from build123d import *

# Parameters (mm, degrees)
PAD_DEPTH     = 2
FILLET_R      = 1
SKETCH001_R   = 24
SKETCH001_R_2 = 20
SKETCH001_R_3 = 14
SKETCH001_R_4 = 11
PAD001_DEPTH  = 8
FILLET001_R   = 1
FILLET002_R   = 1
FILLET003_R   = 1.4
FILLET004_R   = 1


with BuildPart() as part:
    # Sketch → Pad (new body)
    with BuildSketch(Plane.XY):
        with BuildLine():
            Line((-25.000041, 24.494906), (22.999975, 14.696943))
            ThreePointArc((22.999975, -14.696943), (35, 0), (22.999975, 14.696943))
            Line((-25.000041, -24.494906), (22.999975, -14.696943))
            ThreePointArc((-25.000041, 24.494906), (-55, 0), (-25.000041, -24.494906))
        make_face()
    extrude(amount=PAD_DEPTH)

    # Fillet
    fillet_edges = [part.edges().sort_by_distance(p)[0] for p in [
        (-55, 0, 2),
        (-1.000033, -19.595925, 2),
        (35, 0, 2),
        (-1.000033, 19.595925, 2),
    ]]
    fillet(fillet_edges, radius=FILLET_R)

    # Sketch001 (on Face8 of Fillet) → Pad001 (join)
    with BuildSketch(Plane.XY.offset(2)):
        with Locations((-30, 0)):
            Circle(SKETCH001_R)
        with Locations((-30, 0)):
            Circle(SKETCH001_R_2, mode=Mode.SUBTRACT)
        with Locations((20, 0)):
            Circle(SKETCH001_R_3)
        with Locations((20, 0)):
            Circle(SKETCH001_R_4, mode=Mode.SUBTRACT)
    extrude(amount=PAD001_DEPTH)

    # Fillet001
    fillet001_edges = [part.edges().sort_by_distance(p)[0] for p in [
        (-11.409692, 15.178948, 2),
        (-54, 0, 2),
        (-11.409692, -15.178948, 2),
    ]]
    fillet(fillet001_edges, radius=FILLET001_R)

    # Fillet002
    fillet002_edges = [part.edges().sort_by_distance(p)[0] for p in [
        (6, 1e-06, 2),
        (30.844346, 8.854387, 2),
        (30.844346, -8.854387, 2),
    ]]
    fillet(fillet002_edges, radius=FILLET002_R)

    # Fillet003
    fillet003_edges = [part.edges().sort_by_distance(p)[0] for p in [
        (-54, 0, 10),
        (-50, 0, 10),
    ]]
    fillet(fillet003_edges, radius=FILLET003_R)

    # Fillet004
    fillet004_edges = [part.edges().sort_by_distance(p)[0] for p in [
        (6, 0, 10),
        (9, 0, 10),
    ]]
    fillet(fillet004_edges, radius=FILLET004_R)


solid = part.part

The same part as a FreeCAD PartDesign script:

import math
import FreeCAD as App
import Part
import Sketcher


def edges_at(feature, points):
    """Names of the edges that pass closest to the given points."""
    edges = feature.Shape.Edges
    near = lambda p: min(range(len(edges)), key=lambda i: edges[i].distToShape(Part.Vertex(*p))[0])
    return sorted({f"Edge{near(p) + 1}" for p in points})

doc = App.newDocument("Part")
body = doc.addObject("PartDesign::Body", "Body")

sketch1 = body.newObject("Sketcher::SketchObject", "Sketch")
sketch1.AttachmentSupport = (doc.getObject("XY_Plane"), [""])
sketch1.MapMode = "FlatFace"
sketch1.addGeometry([
    Part.LineSegment(App.Vector(22.999975, 14.696943, 0), App.Vector(-25.000041, 24.494906, 0)),
    Part.ArcOfCircle(Part.Circle(App.Vector(-30, 0, 0), App.Vector(0, 0, 1), 25), math.radians(78.463137), math.radians(281.536863)),
    Part.LineSegment(App.Vector(-25.000041, -24.494906, 0), App.Vector(22.999975, -14.696943, 0)),
    Part.ArcOfCircle(Part.Circle(App.Vector(20.000001, 0, 0), App.Vector(0, 0, 1), 14.999999), math.radians(-78.463141), math.radians(78.463141)),
], False)
sketch1.addConstraint([
    Sketcher.Constraint("Coincident", 0, 2, 1, 1),
    Sketcher.Constraint("Coincident", 1, 2, 2, 1),
    Sketcher.Constraint("Coincident", 2, 2, 3, 1),
    Sketcher.Constraint("Coincident", 3, 2, 0, 1),
    Sketcher.Constraint("PointOnObject", 1, 3, -1),
    Sketcher.Constraint("PointOnObject", 3, 3, -1),
    Sketcher.Constraint("Radius", 1, 25.0),
    Sketcher.Constraint("Radius", 3, 14.999999),
    Sketcher.Constraint("DistanceX", 1, 3, -1, 1, 30.0),
    Sketcher.Constraint("DistanceX", -1, 1, 3, 3, 20.000001),
    Sketcher.Constraint("Distance", 0, 48.989811),
    Sketcher.Constraint("Distance", 2, 48.989811),
    Sketcher.Constraint("DistanceX", 0, 2, -1, 1, 25.000041),
    Sketcher.Constraint("DistanceX", 1, 2, -1, 1, 25.000041),
])
pad1 = body.newObject("PartDesign::Pad", "Pad")
pad1.Profile = sketch1
pad1.Length = 2
doc.recompute()

fillet = body.newObject("PartDesign::Fillet", "Fillet")
fillet.Base = (pad1, edges_at(pad1, [
    (-55, 0, 2),
    (-1, -19.596, 2),
    (35, 0, 2),
    (-1, 19.596, 2),
]))
fillet.Radius = 1

sketch2 = body.newObject("Sketcher::SketchObject", "Sketch001")
sketch2.AttachmentSupport = (doc.getObject("XY_Plane"), [""])
sketch2.MapMode = "FlatFace"
sketch2.AttachmentOffset = App.Placement(App.Vector(0, 0, 2), App.Rotation())
sketch2.addGeometry([
    Part.Circle(App.Vector(-30, 0, 0), App.Vector(0, 0, 1), 24),
    Part.Circle(App.Vector(-30, 0, 0), App.Vector(0, 0, 1), 20),
    Part.Circle(App.Vector(20, 0, 0), App.Vector(0, 0, 1), 14),
    Part.Circle(App.Vector(20, 0, 0), App.Vector(0, 0, 1), 11),
], False)
sketch2.addConstraint([
    Sketcher.Constraint("Coincident", 1, 3, 0, 3),
    Sketcher.Constraint("Coincident", 3, 3, 2, 3),
    Sketcher.Constraint("PointOnObject", 0, 3, -1),
    Sketcher.Constraint("PointOnObject", 2, 3, -1),
    Sketcher.Constraint("Diameter", 0, 48.0),
    Sketcher.Constraint("Diameter", 1, 40.0),
    Sketcher.Constraint("Diameter", 2, 28.0),
    Sketcher.Constraint("Diameter", 3, 22.0),
    Sketcher.Constraint("DistanceX", 0, 3, -1, 1, 30.0),
    Sketcher.Constraint("DistanceX", -1, 1, 2, 3, 20.0),
])
pad2 = body.newObject("PartDesign::Pad", "Pad001")
pad2.Profile = sketch2
pad2.Length = 8
doc.recompute()

fillet2 = body.newObject("PartDesign::Fillet", "Fillet001")
fillet2.Base = (pad2, edges_at(pad2, [(-11.41, 15.179, 2), (-54, 0, 2), (-11.41, -15.179, 2)]))
fillet2.Radius = 1
doc.recompute()

fillet3 = body.newObject("PartDesign::Fillet", "Fillet002")
fillet3.Base = (fillet2, edges_at(fillet2, [(6, 0, 2), (30.844, 8.854, 2), (30.844, -8.854, 2)]))
fillet3.Radius = 1
doc.recompute()

fillet4 = body.newObject("PartDesign::Fillet", "Fillet003")
fillet4.Base = (fillet3, edges_at(fillet3, [(-54, 0, 10), (-50, 0, 10)]))
fillet4.Radius = 1.4
doc.recompute()

fillet5 = body.newObject("PartDesign::Fillet", "Fillet004")
fillet5.Base = (fillet4, edges_at(fillet4, [(6, 0, 10), (9, 0, 10)]))
fillet5.Radius = 1

doc.recompute()
